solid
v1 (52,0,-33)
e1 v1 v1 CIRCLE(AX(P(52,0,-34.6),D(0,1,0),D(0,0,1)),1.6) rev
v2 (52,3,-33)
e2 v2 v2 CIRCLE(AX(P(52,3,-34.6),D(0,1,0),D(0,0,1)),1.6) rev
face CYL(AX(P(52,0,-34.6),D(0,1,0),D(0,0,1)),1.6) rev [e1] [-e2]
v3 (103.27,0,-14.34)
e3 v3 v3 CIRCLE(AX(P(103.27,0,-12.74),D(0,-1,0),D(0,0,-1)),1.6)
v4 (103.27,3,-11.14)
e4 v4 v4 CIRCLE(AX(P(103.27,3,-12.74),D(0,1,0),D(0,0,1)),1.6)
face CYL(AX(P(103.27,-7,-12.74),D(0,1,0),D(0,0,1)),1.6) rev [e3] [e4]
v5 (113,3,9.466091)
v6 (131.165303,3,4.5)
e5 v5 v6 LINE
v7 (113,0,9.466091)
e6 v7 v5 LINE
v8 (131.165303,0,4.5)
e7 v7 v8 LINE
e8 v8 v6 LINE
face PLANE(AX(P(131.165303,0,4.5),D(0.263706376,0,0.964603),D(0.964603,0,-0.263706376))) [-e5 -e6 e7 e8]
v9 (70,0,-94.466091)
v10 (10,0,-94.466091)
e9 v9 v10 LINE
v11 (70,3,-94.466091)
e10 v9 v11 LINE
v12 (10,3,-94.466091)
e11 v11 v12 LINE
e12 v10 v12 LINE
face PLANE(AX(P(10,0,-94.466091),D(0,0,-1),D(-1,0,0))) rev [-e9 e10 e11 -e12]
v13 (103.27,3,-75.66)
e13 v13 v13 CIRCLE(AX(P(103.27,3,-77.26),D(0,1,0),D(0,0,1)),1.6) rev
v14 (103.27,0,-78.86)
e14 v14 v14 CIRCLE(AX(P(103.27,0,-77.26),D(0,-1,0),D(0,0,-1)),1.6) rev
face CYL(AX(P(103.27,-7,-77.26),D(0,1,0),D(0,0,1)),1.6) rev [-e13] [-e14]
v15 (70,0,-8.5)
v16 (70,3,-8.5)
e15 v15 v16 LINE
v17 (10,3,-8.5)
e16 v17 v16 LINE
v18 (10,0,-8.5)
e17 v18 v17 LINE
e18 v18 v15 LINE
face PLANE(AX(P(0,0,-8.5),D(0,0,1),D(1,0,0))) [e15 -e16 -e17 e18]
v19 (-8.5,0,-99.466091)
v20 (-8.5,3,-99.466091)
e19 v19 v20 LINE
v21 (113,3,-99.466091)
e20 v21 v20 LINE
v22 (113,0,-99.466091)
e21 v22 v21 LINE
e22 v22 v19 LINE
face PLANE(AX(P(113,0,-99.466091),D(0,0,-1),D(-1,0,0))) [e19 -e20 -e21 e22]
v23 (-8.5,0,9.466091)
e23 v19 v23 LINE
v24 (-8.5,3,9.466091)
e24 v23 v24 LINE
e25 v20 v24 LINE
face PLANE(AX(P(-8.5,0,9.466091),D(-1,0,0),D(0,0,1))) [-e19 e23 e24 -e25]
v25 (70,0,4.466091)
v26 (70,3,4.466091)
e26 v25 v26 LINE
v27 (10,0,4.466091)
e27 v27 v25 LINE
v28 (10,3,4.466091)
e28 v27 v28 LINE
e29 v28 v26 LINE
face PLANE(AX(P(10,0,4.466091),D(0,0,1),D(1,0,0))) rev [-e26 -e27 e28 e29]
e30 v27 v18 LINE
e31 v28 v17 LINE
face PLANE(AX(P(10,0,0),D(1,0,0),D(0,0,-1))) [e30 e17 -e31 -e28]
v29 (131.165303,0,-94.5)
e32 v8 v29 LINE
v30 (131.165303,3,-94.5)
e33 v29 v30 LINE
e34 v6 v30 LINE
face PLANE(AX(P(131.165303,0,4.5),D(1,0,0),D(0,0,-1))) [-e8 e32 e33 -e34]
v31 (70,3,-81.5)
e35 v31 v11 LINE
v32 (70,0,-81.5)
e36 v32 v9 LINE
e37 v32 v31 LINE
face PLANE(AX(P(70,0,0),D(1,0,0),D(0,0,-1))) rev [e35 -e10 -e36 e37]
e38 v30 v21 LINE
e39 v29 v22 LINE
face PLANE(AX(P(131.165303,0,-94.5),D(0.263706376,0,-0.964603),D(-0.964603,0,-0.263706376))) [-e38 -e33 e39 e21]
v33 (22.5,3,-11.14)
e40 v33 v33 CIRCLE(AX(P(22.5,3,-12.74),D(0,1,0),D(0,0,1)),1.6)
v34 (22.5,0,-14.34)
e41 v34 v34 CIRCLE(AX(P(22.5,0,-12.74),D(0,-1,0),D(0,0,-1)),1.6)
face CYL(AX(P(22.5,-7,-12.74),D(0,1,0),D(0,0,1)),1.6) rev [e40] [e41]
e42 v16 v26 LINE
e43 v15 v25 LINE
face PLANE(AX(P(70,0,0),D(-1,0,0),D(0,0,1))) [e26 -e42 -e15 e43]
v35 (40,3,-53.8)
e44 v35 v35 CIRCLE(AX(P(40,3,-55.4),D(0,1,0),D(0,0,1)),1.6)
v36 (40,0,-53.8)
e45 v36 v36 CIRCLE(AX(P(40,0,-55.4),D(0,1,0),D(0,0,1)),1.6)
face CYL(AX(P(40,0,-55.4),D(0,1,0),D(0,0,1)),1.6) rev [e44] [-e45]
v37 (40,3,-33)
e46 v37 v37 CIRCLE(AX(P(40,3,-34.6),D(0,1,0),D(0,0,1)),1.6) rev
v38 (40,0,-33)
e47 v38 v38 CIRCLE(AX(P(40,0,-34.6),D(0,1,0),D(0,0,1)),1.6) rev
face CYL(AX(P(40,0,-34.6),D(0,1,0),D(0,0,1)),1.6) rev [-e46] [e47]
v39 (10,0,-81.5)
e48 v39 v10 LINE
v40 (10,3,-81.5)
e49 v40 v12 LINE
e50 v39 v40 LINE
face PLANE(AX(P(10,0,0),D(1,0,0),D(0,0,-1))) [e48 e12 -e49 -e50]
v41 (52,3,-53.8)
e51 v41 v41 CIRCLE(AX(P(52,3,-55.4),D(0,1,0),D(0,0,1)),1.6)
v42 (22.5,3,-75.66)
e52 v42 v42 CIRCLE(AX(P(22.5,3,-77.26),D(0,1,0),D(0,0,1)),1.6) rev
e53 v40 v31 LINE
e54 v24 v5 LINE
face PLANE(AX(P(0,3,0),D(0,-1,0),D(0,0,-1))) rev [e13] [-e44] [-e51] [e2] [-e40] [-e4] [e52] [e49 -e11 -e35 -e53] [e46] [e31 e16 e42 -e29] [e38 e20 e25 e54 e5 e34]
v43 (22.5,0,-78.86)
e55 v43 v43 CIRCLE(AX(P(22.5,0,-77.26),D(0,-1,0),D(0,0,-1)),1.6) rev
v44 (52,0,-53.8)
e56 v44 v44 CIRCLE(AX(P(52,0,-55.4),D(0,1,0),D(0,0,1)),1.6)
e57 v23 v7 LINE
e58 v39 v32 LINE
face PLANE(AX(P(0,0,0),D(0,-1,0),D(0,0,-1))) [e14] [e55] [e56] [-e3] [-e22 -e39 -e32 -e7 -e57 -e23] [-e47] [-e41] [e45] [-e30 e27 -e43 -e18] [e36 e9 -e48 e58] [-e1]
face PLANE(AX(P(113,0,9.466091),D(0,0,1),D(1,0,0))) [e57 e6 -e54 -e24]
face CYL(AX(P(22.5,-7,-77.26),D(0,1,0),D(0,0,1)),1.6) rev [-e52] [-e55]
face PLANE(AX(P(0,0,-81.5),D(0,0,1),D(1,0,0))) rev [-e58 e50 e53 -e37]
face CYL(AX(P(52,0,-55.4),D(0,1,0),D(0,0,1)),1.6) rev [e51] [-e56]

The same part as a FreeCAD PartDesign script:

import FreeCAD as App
import Part
import Sketcher
from FreeCAD import Vector
Q = App.Units.Quantity

doc = App.newDocument("Part")
body = doc.addObject("PartDesign::Body", "Body")

# Sketch on XZ plane
sketch1 = body.newObject("Sketcher::SketchObject", "Sketch")
sketch1.AttachmentSupport = (doc.getObject("XZ_Plane"), [""])
sketch1.MapMode = "FlatFace"
sketch1.addGeometry(Part.LineSegment(Vector(0, -90, 0), Vector(0, 0, 0)), False)
sketch1.addGeometry(Part.LineSegment(Vector(0, 0, 0), Vector(110, 0, 0)), False)
sketch1.addGeometry(Part.LineSegment(Vector(110, 0, 0), Vector(110, -90, 0)), False)
sketch1.addGeometry(Part.LineSegment(Vector(110, -90, 0), Vector(0, -90, 0)), False)
sketch1.addConstraint(Sketcher.Constraint("Coincident", 0, 2, 1, 1))
sketch1.addConstraint(Sketcher.Constraint("Coincident", 1, 2, 2, 1))
sketch1.addConstraint(Sketcher.Constraint("Coincident", 2, 2, 3, 1))
sketch1.addConstraint(Sketcher.Constraint("Coincident", 3, 2, 0, 1))
sketch1.addConstraint(Sketcher.Constraint("Vertical", 0))
sketch1.addConstraint(Sketcher.Constraint("Horizontal", 1))
sketch1.addConstraint(Sketcher.Constraint("Vertical", 2))
sketch1.addConstraint(Sketcher.Constraint("Horizontal", 3))
sketch1.addConstraint(Sketcher.Constraint("Coincident", 0, 2, -1, 1))
sketch1.addConstraint(Sketcher.Constraint("DistanceX", 1, 1, 1, 2, Q("110 mm")))
sketch1.addConstraint(Sketcher.Constraint("DistanceY", 0, 1, 0, 2, Q("90 mm")))
pad1 = body.newObject("PartDesign::Pad", "Pad")
pad1.Profile = sketch1
pad1.Length = 3
pad1.Reversed = True

# Sketch on XZ plane
sketch2 = body.newObject("Sketcher::SketchObject", "Sketch001")
sketch2.AttachmentSupport = (doc.getObject("XZ_Plane"), [""])
sketch2.MapMode = "FlatFace"
sketch2.AttachmentOffset = App.Placement(Vector(0, 0, -3), App.Rotation())
sketch2.addGeometry(Part.LineSegment(Vector(10, -90, 0), Vector(10, -81.5, 0)), False)
sketch2.addGeometry(Part.LineSegment(Vector(10, -81.5, 0), Vector(70, -81.5, 0)), False)
sketch2.addGeometry(Part.LineSegment(Vector(70, -81.5, 0), Vector(70, -90, 0)), False)
sketch2.addGeometry(Part.LineSegment(Vector(70, -90, 0), Vector(10, -90, 0)), False)
sketch2.addGeometry(Part.LineSegment(Vector(10, -8.5, 0), Vector(10, 0, 0)), False)
sketch2.addGeometry(Part.LineSegment(Vector(10, 0, 0), Vector(70, 0, 0)), False)
sketch2.addGeometry(Part.LineSegment(Vector(70, 0, 0), Vector(70, -8.5, 0)), False)
sketch2.addGeometry(Part.LineSegment(Vector(70, -8.5, 0), Vector(10, -8.5, 0)), False)
sketch2.addGeometry(Part.Circle(Vector(40, -55.4, 0), Vector(0, 0, 1), 1.6), False)
sketch2.addGeometry(Part.Circle(Vector(52, -55.4, 0), Vector(0, 0, 1), 1.6), False)
sketch2.addGeometry(Part.Circle(Vector(52, -34.6, 0), Vector(0, 0, 1), 1.6), False)
sketch2.addGeometry(Part.Circle(Vector(40, -34.6, 0), Vector(0, 0, 1), 1.6), False)
sketch2.addConstraint(Sketcher.Constraint("Coincident", 0, 2, 1, 1))
sketch2.addConstraint(Sketcher.Constraint("Coincident", 1, 2, 2, 1))
sketch2.addConstraint(Sketcher.Constraint("Coincident", 2, 2, 3, 1))
sketch2.addConstraint(Sketcher.Constraint("Coincident", 3, 2, 0, 1))
sketch2.addConstraint(Sketcher.Constraint("Coincident", 4, 2, 5, 1))
sketch2.addConstraint(Sketcher.Constraint("Coincident", 5, 2, 6, 1))
sketch2.addConstraint(Sketcher.Constraint("Coincident", 6, 2, 7, 1))
sketch2.addConstraint(Sketcher.Constraint("Coincident", 7, 2, 4, 1))
sketch2.addConstraint(Sketcher.Constraint("Vertical", 0))
sketch2.addConstraint(Sketcher.Constraint("Horizontal", 1))
sketch2.addConstraint(Sketcher.Constraint("Vertical", 2))
sketch2.addConstraint(Sketcher.Constraint("Horizontal", 3))
sketch2.addConstraint(Sketcher.Constraint("Vertical", 4))
sketch2.addConstraint(Sketcher.Constraint("Horizontal", 5))
sketch2.addConstraint(Sketcher.Constraint("Vertical", 6))
sketch2.addConstraint(Sketcher.Constraint("Horizontal", 7))
sketch2.addConstraint(Sketcher.Constraint("Equal", 8, 9))
sketch2.addConstraint(Sketcher.Constraint("Equal", 9, 10))
sketch2.addConstraint(Sketcher.Constraint("Equal", 10, 11))
sketch2.addConstraint(Sketcher.Constraint("PointOnObject", 4, 2, -1))
sketch2.addConstraint(Sketcher.Constraint("Horizontal", 8, 3, 9, 3))
sketch2.addConstraint(Sketcher.Constraint("Horizontal", 10, 3, 11, 3))
sketch2.addConstraint(Sketcher.Constraint("Vertical", 9, 3, 10, 3))
sketch2.addConstraint(Sketcher.Constraint("Vertical", 8, 3, 11, 3))
sketch2.addConstraint(Sketcher.Constraint("Vertical", 3, 2, 4, 2))
sketch2.addConstraint(Sketcher.Constraint("Vertical", 2, 2, 5, 2))
sketch2.addConstraint(Sketcher.Constraint("Equal", 2, 4))
sketch2.addConstraint(Sketcher.Constraint("Diameter", 8, Q("3.2 mm")))
sketch2.addConstraint(Sketcher.Constraint("DistanceX", 1, 1, 1, 2, Q("60 mm")))
sketch2.addConstraint(Sketcher.Constraint("DistanceY", 0, 1, 0, 2, Q("8.5 mm")))
sketch2.addConstraint(Sketcher.Constraint("DistanceX", -1, 1, 8, 3, Q("40 mm")))
sketch2.addConstraint(Sketcher.Constraint("DistanceX", -1, 1, 9, 3, Q("52 mm")))
sketch2.addConstraint(Sketcher.Constraint("DistanceX", -1, 1, 0, 2, Q("10 mm")))
sketch2.addConstraint(Sketcher.Constraint("DistanceY", 2, 2, -1, 1, Q("90 mm")))
sketch2.addConstraint(Sketcher.Constraint("DistanceY", 8, 3, -1, 1, Q("55.4 mm")))
sketch2.addConstraint(Sketcher.Constraint("DistanceY", 10, 3, -1, 1, Q("34.6 mm")))
pocket1 = body.newObject("PartDesign::Pocket", "Pocket")
pocket1.Profile = sketch2
pocket1.Length = 3
pocket1.Reversed = True

# Sketch on XZ plane
sketch3 = body.newObject("Sketcher::SketchObject", "Sketch002")
sketch3.AttachmentSupport = (doc.getObject("XZ_Plane"), [""])
sketch3.MapMode = "FlatFace"
sketch3.AttachmentOffset = App.Placement(Vector(0, 0, -3), App.Rotation())
sketch3.addGeometry(Part.Circle(Vector(22.5, -77.3, 0), Vector(0, 0, 1), 1.6), False)
sketch3.addGeometry(Part.Circle(Vector(22.5, -12.7, 0), Vector(0, 0, 1), 1.6), False)
sketch3.addGeometry(Part.Circle(Vector(103.3, -12.7, 0), Vector(0, 0, 1), 1.6), False)
sketch3.addGeometry(Part.Circle(Vector(103.3, -77.3, 0), Vector(0, 0, 1), 1.6), False)
sketch3.addConstraint(Sketcher.Constraint("Equal", 0, 1))
sketch3.addConstraint(Sketcher.Constraint("Equal", 1, 2))
sketch3.addConstraint(Sketcher.Constraint("Equal", 2, 3))
sketch3.addConstraint(Sketcher.Constraint("Horizontal", 1, 3, 2, 3))
sketch3.addConstraint(Sketcher.Constraint("Horizontal", 0, 3, 3, 3))
sketch3.addConstraint(Sketcher.Constraint("Vertical", 0, 3, 1, 3))
sketch3.addConstraint(Sketcher.Constraint("Vertical", 2, 3, 3, 3))
sketch3.addConstraint(Sketcher.Constraint("Diameter", 0, Q("3.2 mm")))
sketch3.addConstraint(Sketcher.Constraint("DistanceX", -1, 1, 0, 3, Q("22.5 mm")))
sketch3.addConstraint(Sketcher.Constraint("DistanceY", 0, 3, -1, 1, Q("77.26 mm")))
sketch3.addConstraint(Sketcher.Constraint("DistanceY", 1, 3, -1, 1, Q("12.74 mm")))
sketch3.addConstraint(Sketcher.Constraint("DistanceX", -1, 1, 2, 3, Q("103.27 mm")))
pocket2 = body.newObject("PartDesign::Pocket", "Pocket001")
pocket2.Profile = sketch3
pocket2.Length = 10
pocket2.Reversed = True

# Sketch on XZ plane
sketch4 = body.newObject("Sketcher::SketchObject", "Sketch003")
sketch4.AttachmentSupport = (doc.getObject("XZ_Plane"), [""])
sketch4.MapMode = "FlatFace"
sketch4.AttachmentOffset = App.Placement(Vector(0, 0, -3), App.Rotation())
sketch4.addGeometry(Part.LineSegment(Vector(-8.5, 9.5, 0), Vector(113, 9.5, 0)), False)
sketch4.addGeometry(Part.LineSegment(Vector(113, 9.5, 0), Vector(131.2, 4.5, 0)), False)
sketch4.addGeometry(Part.LineSegment(Vector(131.2, 4.5, 0), Vector(131.2, -94.5, 0)), False)
sketch4.addGeometry(Part.LineSegment(Vector(131.2, -94.5, 0), Vector(113, -99.5, 0)), False)
sketch4.addGeometry(Part.LineSegment(Vector(113, -99.5, 0), Vector(-8.5, -99.5, 0)), False)
sketch4.addGeometry(Part.LineSegment(Vector(-8.5, -99.5, 0), Vector(-8.5, 9.5, 0)), False)
sketch4.addGeometry(Part.LineSegment(Vector(10, 0, 0), Vector(0, 0, 0)), False)
sketch4.addGeometry(Part.LineSegment(Vector(0, 0, 0), Vector(0, -90, 0)), False)
sketch4.addGeometry(Part.LineSegment(Vector(0, -90, 0), Vector(10, -90, 0)), False)
sketch4.addGeometry(Part.LineSegment(Vector(10, -90, 0), Vector(10, -94.5, 0)), False)
sketch4.addGeometry(Part.LineSegment(Vector(10, -94.5, 0), Vector(70, -94.5, 0)), False)
sketch4.addGeometry(Part.LineSegment(Vector(70, -94.5, 0), Vector(70, -90, 0)), False)
sketch4.addGeometry(Part.LineSegment(Vector(70, -90, 0), Vector(110, -90, 0)), False)
sketch4.addGeometry(Part.LineSegment(Vector(110, -90, 0), Vector(110, 0, 0)), False)
sketch4.addGeometry(Part.LineSegment(Vector(110, 0, 0), Vector(70, 0, 0)), False)
sketch4.addGeometry(Part.LineSegment(Vector(70, 0, 0), Vector(70, 4.5, 0)), False)
sketch4.addGeometry(Part.LineSegment(Vector(70, 4.5, 0), Vector(10, 4.5, 0)), False)
sketch4.addGeometry(Part.LineSegment(Vector(10, 4.5, 0), Vector(10, 0, 0)), False)
sketch4.addConstraint(Sketcher.Constraint("Coincident", 0, 2, 1, 1))
sketch4.addConstraint(Sketcher.Constraint("Coincident", 1, 2, 2, 1))
sketch4.addConstraint(Sketcher.Constraint("Coincident", 2, 2, 3, 1))
sketch4.addConstraint(Sketcher.Constraint("Coincident", 3, 2, 4, 1))
sketch4.addConstraint(Sketcher.Constraint("Coincident", 4, 2, 5, 1))
sketch4.addConstraint(Sketcher.Constraint("Coincident", 5, 2, 0, 1))
sketch4.addConstraint(Sketcher.Constraint("Coincident", 6, 2, 7, 1))
sketch4.addConstraint(Sketcher.Constraint("Coincident", 7, 2, 8, 1))
sketch4.addConstraint(Sketcher.Constraint("Coincident", 8, 2, 9, 1))
sketch4.addConstraint(Sketcher.Constraint("Coincident", 9, 2, 10, 1))
sketch4.addConstraint(Sketcher.Constraint("Coincident", 10, 2, 11, 1))
sketch4.addConstraint(Sketcher.Constraint("Coincident", 11, 2, 12, 1))
sketch4.addConstraint(Sketcher.Constraint("Coincident", 12, 2, 13, 1))
sketch4.addConstraint(Sketcher.Constraint("Coincident", 13, 2, 14, 1))
sketch4.addConstraint(Sketcher.Constraint("Coincident", 14, 2, 15, 1))
sketch4.addConstraint(Sketcher.Constraint("Coincident", 15, 2, 16, 1))
sketch4.addConstraint(Sketcher.Constraint("Coincident", 16, 2, 17, 1))
sketch4.addConstraint(Sketcher.Constraint("Coincident", 17, 2, 6, 1))
sketch4.addConstraint(Sketcher.Constraint("Horizontal", 0))
sketch4.addConstraint(Sketcher.Constraint("Vertical", 2))
sketch4.addConstraint(Sketcher.Constraint("Horizontal", 4))
sketch4.addConstraint(Sketcher.Constraint("Vertical", 5))
sketch4.addConstraint(Sketcher.Constraint("Horizontal", 6))
sketch4.addConstraint(Sketcher.Constraint("Vertical", 7))
sketch4.addConstraint(Sketcher.Constraint("Horizontal", 8))
sketch4.addConstraint(Sketcher.Constraint("Vertical", 9))
sketch4.addConstraint(Sketcher.Constraint("Horizontal", 10))
sketch4.addConstraint(Sketcher.Constraint("Vertical", 11))
sketch4.addConstraint(Sketcher.Constraint("Horizontal", 12))
sketch4.addConstraint(Sketcher.Constraint("Vertical", 13))
sketch4.addConstraint(Sketcher.Constraint("Horizontal", 14))
sketch4.addConstraint(Sketcher.Constraint("Vertical", 15))
sketch4.addConstraint(Sketcher.Constraint("Horizontal", 16))
sketch4.addConstraint(Sketcher.Constraint("Vertical", 17))
sketch4.addConstraint(Sketcher.Constraint("Coincident", 6, 2, -1, 1))
sketch4.addConstraint(Sketcher.Constraint("PointOnObject", 13, 2, -1))
sketch4.addConstraint(Sketcher.Constraint("Horizontal", 8, 2, 11, 2))
sketch4.addConstraint(Sketcher.Constraint("Vertical", 0, 2, 3, 2))
sketch4.addConstraint(Sketcher.Constraint("Vertical", 11, 2, 14, 2))
sketch4.addConstraint(Sketcher.Constraint("Vertical", 9, 2, 16, 2))
sketch4.addConstraint(Sketcher.Constraint("Equal", 11, 15))
sketch4.addConstraint(Sketcher.Constraint("Equal", 1, 3))
sketch4.addConstraint(Sketcher.Constraint("DistanceX", 6, 2, 6, 1, Q("10 mm")))
sketch4.addConstraint(Sketcher.Constraint("DistanceX", 10, 1, 10, 2, Q("60 mm")))
sketch4.addConstraint(Sketcher.Constraint("DistanceX", 12, 1, 12, 2, Q("40 mm")))
sketch4.addConstraint(Sketcher.Constraint("DistanceY", 2, 2, 2, 1, Q("99 mm")))
sketch4.addConstraint(Sketcher.Constraint("DistanceY", 7, 2, 7, 1, Q("90 mm")))
sketch4.addConstraint(Sketcher.Constraint("DistanceX", 0, 1, 0, 2, Q("121.5 mm")))
sketch4.addConstraint(Sketcher.Constraint("DistanceX", -1, 1, 0, 2, Q("113 mm")))
sketch4.addConstraint(Sketcher.Constraint("DistanceY", 4, 2, 9, 2, Q("5 mm")))
sketch4.addConstraint(Sketcher.Constraint("DistanceY", 15, 2, 0, 2, Q("5 mm")))
sketch4.addConstraint(Sketcher.Constraint("DistanceY", 5, 1, 5, 2, Q("108.932182 mm")))
sketch4.addConstraint(Sketcher.Constraint("Distance", 1, Q("18.831896 mm")))
pad2 = body.newObject("PartDesign::Pad", "Pad001")
pad2.Profile = sketch4
pad2.Length = 3

doc.recompute()
